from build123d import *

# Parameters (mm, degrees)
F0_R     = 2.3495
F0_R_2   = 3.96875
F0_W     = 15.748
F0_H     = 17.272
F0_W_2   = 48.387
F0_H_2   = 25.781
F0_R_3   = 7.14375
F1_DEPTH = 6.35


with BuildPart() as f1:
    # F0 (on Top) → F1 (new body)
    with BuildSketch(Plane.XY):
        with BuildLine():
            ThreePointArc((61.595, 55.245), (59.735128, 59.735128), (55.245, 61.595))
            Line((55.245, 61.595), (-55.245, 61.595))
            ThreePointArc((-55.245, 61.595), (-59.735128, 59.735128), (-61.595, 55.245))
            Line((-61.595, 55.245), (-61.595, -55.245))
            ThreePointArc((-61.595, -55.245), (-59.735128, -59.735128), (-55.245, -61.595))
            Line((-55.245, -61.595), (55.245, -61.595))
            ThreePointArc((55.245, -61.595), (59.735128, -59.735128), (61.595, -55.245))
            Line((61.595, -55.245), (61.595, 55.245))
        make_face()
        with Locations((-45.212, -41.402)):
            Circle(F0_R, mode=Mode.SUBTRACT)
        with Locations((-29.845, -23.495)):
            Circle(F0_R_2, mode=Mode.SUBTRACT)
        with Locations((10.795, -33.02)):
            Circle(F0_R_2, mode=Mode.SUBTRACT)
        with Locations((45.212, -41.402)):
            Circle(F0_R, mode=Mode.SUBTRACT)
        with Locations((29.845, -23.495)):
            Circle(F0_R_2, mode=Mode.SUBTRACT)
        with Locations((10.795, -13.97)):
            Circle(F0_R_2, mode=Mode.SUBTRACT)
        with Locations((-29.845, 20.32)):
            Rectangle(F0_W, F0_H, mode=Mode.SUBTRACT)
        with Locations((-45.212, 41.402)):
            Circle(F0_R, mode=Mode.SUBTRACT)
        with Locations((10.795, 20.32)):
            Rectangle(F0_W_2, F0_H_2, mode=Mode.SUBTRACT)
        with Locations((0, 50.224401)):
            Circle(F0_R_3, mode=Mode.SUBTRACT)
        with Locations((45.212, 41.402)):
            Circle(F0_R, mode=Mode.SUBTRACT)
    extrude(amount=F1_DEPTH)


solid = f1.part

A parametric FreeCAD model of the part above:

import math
import FreeCAD as App
import Part
import Sketcher

V = App.Vector
Q = App.Units.Quantity

doc = App.newDocument("Part")
params = doc.addObject("Spreadsheet::Sheet", "Params")
for row, (alias, value) in enumerate([
    ("sketch1_radius", "0.25 in"),
    ("sketch1_diameter", "0.185 in"),
    ("sketch1_diameter2", "0.3125 in"),
    ("sketch1_diameter3", "0.5625 in"),
    ("sketch1_width", "4.35 in"),
    ("pad1_length", "0.25 in"),
], start=1):
    params.set(f"A{row}", alias)
    params.set(f"B{row}", "=" + value)
    params.setAlias(f"B{row}", alias)

body = doc.addObject("PartDesign::Body", "Body")

sketch1 = body.newObject("Sketcher::SketchObject", "Sketch")
sketch1.AttachmentSupport = (doc.getObject("XY_Plane"), [""])
sketch1.MapMode = "FlatFace"
sketch1.addGeometry(Part.ArcOfCircle(Part.Circle(V(55.2, 55.2, 0), V(0, 0, 1), 6.4), math.radians(0), math.radians(90)), False)
sketch1.addGeometry(Part.LineSegment(V(55.2, 61.6, 0), V(-55.2, 61.6, 0)), False)
sketch1.addGeometry(Part.ArcOfCircle(Part.Circle(V(-55.2, 55.2, 0), V(0, 0, 1), 6.4), math.radians(90), math.radians(180)), False)
sketch1.addGeometry(Part.LineSegment(V(-61.6, 55.2, 0), V(-61.6, -55.2, 0)), False)
sketch1.addGeometry(Part.ArcOfCircle(Part.Circle(V(-55.2, -55.2, 0), V(0, 0, 1), 6.4), math.radians(-180), math.radians(-90)), False)
sketch1.addGeometry(Part.LineSegment(V(-55.2, -61.6, 0), V(55.2, -61.6, 0)), False)
sketch1.addGeometry(Part.ArcOfCircle(Part.Circle(V(55.2, -55.2, 0), V(0, 0, 1), 6.4), math.radians(-90), math.radians(0)), False)
sketch1.addGeometry(Part.LineSegment(V(61.6, -55.2, 0), V(61.6, 55.2, 0)), False)
sketch1.addGeometry(Part.Circle(V(-45.2, -41.4, 0), V(0, 0, 1), 2.3), False)
sketch1.addGeometry(Part.Circle(V(-29.8, -23.5, 0), V(0, 0, 1), 4), False)
sketch1.addGeometry(Part.Circle(V(10.8, -33, 0), V(0, 0, 1), 4), False)
sketch1.addGeometry(Part.Circle(V(45.2, -41.4, 0), V(0, 0, 1), 2.3), False)
sketch1.addGeometry(Part.Circle(V(29.8, -23.5, 0), V(0, 0, 1), 4), False)
sketch1.addGeometry(Part.Circle(V(10.8, -14, 0), V(0, 0, 1), 4), False)
sketch1.addGeometry(Part.LineSegment(V(-22, 11.7, 0), V(-37.7, 11.7, 0)), False)
sketch1.addGeometry(Part.LineSegment(V(-37.7, 11.7, 0), V(-37.7, 29, 0)), False)
sketch1.addGeometry(Part.LineSegment(V(-37.7, 29, 0), V(-22, 29, 0)), False)
sketch1.addGeometry(Part.LineSegment(V(-22, 29, 0), V(-22, 11.7, 0)), False)
sketch1.addGeometry(Part.Circle(V(-45.2, 41.4, 0), V(0, 0, 1), 2.3), False)
sketch1.addGeometry(Part.Circle(V(0, 50.2, 0), V(0, 0, 1), 7.1), False)
sketch1.addGeometry(Part.LineSegment(V(35, 7.4, 0), V(-13.4, 7.4, 0)), False)
sketch1.addGeometry(Part.LineSegment(V(-13.4, 7.4, 0), V(-13.4, 33.2, 0)), False)
sketch1.addGeometry(Part.LineSegment(V(-13.4, 33.2, 0), V(35, 33.2, 0)), False)
sketch1.addGeometry(Part.LineSegment(V(35, 33.2, 0), V(35, 7.4, 0)), False)
sketch1.addGeometry(Part.Circle(V(45.2, 41.4, 0), V(0, 0, 1), 2.3), False)
sketch1.addConstraint(Sketcher.Constraint("Tangent", 0, 2, 1, 1))
sketch1.addConstraint(Sketcher.Constraint("Tangent", 1, 2, 2, 1))
sketch1.addConstraint(Sketcher.Constraint("Tangent", 2, 2, 3, 1))
sketch1.addConstraint(Sketcher.Constraint("Tangent", 3, 2, 4, 1))
sketch1.addConstraint(Sketcher.Constraint("Tangent", 4, 2, 5, 1))
sketch1.addConstraint(Sketcher.Constraint("Tangent", 5, 2, 6, 1))
sketch1.addConstraint(Sketcher.Constraint("Tangent", 6, 2, 7, 1))
sketch1.addConstraint(Sketcher.Constraint("Tangent", 7, 2, 0, 1))
sketch1.addConstraint(Sketcher.Constraint("Coincident", 14, 2, 15, 1))
sketch1.addConstraint(Sketcher.Constraint("Coincident", 15, 2, 16, 1))
sketch1.addConstraint(Sketcher.Constraint("Coincident", 16, 2, 17, 1))
sketch1.addConstraint(Sketcher.Constraint("Coincident", 17, 2, 14, 1))
sketch1.addConstraint(Sketcher.Constraint("Coincident", 20, 2, 21, 1))
sketch1.addConstraint(Sketcher.Constraint("Coincident", 21, 2, 22, 1))
sketch1.addConstraint(Sketcher.Constraint("Coincident", 22, 2, 23, 1))
sketch1.addConstraint(Sketcher.Constraint("Coincident", 23, 2, 20, 1))
sketch1.addConstraint(Sketcher.Constraint("Horizontal", 1))
sketch1.addConstraint(Sketcher.Constraint("Vertical", 3))
sketch1.addConstraint(Sketcher.Constraint("Horizontal", 5))
sketch1.addConstraint(Sketcher.Constraint("Vertical", 7))
sketch1.addConstraint(Sketcher.Constraint("Horizontal", 14))
sketch1.addConstraint(Sketcher.Constraint("Vertical", 15))
sketch1.addConstraint(Sketcher.Constraint("Horizontal", 16))
sketch1.addConstraint(Sketcher.Constraint("Vertical", 17))
sketch1.addConstraint(Sketcher.Constraint("Horizontal", 20))
sketch1.addConstraint(Sketcher.Constraint("Vertical", 21))
sketch1.addConstraint(Sketcher.Constraint("Horizontal", 22))
sketch1.addConstraint(Sketcher.Constraint("Vertical", 23))
sketch1.addConstraint(Sketcher.Constraint("Equal", 0, 2))
sketch1.addConstraint(Sketcher.Constraint("Equal", 2, 4))
sketch1.addConstraint(Sketcher.Constraint("Equal", 4, 6))
sketch1.addConstraint(Sketcher.Constraint("Equal", 9, 10))
sketch1.addConstraint(Sketcher.Constraint("Equal", 8, 11))
sketch1.addConstraint(Sketcher.Constraint("Equal", 10, 12))
sketch1.addConstraint(Sketcher.Constraint("Equal", 12, 13))
sketch1.addConstraint(Sketcher.Constraint("Equal", 11, 18))
sketch1.addConstraint(Sketcher.Constraint("Equal", 18, 24))
sketch1.addConstraint(Sketcher.Constraint("Symmetric", 0, 3, 4, 3, -1, 1))
sketch1.addConstraint(Sketcher.Constraint("Symmetric", 11, 3, 18, 3, -1, 1))
sketch1.addConstraint(Sketcher.Constraint("Symmetric", 8, 3, 24, 3, -1, 1))
sketch1.addConstraint(Sketcher.Constraint("Symmetric", 8, 3, 11, 3, -2))
sketch1.addConstraint(Sketcher.Constraint("Symmetric", 9, 3, 12, 3, -2))
sketch1.addConstraint(Sketcher.Constraint("PointOnObject", 19, 3, -2))
sketch1.addConstraint(Sketcher.Constraint("Vertical", 10, 3, 13, 3))
sketch1.addConstraint(Sketcher.Constraint("Equal", 5, 3))
sketch1.addConstraint(Sketcher.Constraint("Radius", 0, Q("0.25 in")))
sketch1.addConstraint(Sketcher.Constraint("Diameter", 8, Q("0.185 in")))
sketch1.addConstraint(Sketcher.Constraint("Diameter", 9, Q("0.3125 in")))
sketch1.addConstraint(Sketcher.Constraint("Diameter", 19, Q("0.5625 in")))
sketch1.addConstraint(Sketcher.Constraint("DistanceX", 4, 3, 9, 3, Q("1 in")))
sketch1.addConstraint(Sketcher.Constraint("DistanceX", 10, 3, 6, 2, Q("2 in")))
sketch1.addConstraint(Sketcher.Constraint("DistanceX", 1, 2, 1, 1, Q("4.35 in")))
sketch1.addConstraint(Sketcher.Constraint("DistanceX", 14, 2, 14, 1, Q("0.62 in")))
sketch1.addConstraint(Sketcher.Constraint("DistanceY", 15, 1, 15, 2, Q("0.68 in")))
sketch1.addConstraint(Sketcher.Constraint("DistanceY", 10, 3, -1, 1, Q("1.3 in")))
sketch1.addConstraint(Sketcher.Constraint("DistanceY", 9, 3, 2, 3, Q("3.1 in")))
sketch1.addConstraint(Sketcher.Constraint("DistanceX", 20, 2, 20, 1, Q("1.905 in")))
sketch1.addConstraint(Sketcher.Constraint("DistanceY", 21, 1, 21, 2, Q("1.015 in")))
sketch1.addConstraint(Sketcher.Constraint("DistanceX", 8, 3, -1, 1, Q("1.78 in")))
sketch1.addConstraint(Sketcher.Constraint("DistanceY", 8, 3, -1, 1, Q("1.63 in")))
sketch1.addConstraint(Sketcher.Constraint("DistanceY", 13, 3, -1, 1, Q("0.55 in")))
sketch1.addConstraint(Sketcher.Constraint("DistanceY", -1, 1, 14, 2, Q("0.46 in")))
sketch1.addConstraint(Sketcher.Constraint("DistanceX", 14, 2, 9, 3, Q("0.31 in")))
sketch1.addConstraint(Sketcher.Constraint("DistanceX", 20, 2, -1, 1, Q("0.5275 in")))
sketch1.addConstraint(Sketcher.Constraint("DistanceY", -1, 1, 20, 2, Q("0.2925 in")))
sketch1.addConstraint(Sketcher.Constraint("DistanceY", -1, 1, 19, 3, Q("50.224401 mm")))
sketch1.setExpression("Constraints[45]", "Params.sketch1_radius")
sketch1.setExpression("Constraints[46]", "Params.sketch1_diameter")
sketch1.setExpression("Constraints[47]", "Params.sketch1_diameter2")
sketch1.setExpression("Constraints[48]", "Params.sketch1_diameter3")
sketch1.setExpression("Constraints[51]", "Params.sketch1_width")
pad1 = body.newObject("PartDesign::Pad", "Pad")
pad1.Profile = sketch1
pad1.setExpression("Length", "Params.pad1_length")

doc.recompute()
